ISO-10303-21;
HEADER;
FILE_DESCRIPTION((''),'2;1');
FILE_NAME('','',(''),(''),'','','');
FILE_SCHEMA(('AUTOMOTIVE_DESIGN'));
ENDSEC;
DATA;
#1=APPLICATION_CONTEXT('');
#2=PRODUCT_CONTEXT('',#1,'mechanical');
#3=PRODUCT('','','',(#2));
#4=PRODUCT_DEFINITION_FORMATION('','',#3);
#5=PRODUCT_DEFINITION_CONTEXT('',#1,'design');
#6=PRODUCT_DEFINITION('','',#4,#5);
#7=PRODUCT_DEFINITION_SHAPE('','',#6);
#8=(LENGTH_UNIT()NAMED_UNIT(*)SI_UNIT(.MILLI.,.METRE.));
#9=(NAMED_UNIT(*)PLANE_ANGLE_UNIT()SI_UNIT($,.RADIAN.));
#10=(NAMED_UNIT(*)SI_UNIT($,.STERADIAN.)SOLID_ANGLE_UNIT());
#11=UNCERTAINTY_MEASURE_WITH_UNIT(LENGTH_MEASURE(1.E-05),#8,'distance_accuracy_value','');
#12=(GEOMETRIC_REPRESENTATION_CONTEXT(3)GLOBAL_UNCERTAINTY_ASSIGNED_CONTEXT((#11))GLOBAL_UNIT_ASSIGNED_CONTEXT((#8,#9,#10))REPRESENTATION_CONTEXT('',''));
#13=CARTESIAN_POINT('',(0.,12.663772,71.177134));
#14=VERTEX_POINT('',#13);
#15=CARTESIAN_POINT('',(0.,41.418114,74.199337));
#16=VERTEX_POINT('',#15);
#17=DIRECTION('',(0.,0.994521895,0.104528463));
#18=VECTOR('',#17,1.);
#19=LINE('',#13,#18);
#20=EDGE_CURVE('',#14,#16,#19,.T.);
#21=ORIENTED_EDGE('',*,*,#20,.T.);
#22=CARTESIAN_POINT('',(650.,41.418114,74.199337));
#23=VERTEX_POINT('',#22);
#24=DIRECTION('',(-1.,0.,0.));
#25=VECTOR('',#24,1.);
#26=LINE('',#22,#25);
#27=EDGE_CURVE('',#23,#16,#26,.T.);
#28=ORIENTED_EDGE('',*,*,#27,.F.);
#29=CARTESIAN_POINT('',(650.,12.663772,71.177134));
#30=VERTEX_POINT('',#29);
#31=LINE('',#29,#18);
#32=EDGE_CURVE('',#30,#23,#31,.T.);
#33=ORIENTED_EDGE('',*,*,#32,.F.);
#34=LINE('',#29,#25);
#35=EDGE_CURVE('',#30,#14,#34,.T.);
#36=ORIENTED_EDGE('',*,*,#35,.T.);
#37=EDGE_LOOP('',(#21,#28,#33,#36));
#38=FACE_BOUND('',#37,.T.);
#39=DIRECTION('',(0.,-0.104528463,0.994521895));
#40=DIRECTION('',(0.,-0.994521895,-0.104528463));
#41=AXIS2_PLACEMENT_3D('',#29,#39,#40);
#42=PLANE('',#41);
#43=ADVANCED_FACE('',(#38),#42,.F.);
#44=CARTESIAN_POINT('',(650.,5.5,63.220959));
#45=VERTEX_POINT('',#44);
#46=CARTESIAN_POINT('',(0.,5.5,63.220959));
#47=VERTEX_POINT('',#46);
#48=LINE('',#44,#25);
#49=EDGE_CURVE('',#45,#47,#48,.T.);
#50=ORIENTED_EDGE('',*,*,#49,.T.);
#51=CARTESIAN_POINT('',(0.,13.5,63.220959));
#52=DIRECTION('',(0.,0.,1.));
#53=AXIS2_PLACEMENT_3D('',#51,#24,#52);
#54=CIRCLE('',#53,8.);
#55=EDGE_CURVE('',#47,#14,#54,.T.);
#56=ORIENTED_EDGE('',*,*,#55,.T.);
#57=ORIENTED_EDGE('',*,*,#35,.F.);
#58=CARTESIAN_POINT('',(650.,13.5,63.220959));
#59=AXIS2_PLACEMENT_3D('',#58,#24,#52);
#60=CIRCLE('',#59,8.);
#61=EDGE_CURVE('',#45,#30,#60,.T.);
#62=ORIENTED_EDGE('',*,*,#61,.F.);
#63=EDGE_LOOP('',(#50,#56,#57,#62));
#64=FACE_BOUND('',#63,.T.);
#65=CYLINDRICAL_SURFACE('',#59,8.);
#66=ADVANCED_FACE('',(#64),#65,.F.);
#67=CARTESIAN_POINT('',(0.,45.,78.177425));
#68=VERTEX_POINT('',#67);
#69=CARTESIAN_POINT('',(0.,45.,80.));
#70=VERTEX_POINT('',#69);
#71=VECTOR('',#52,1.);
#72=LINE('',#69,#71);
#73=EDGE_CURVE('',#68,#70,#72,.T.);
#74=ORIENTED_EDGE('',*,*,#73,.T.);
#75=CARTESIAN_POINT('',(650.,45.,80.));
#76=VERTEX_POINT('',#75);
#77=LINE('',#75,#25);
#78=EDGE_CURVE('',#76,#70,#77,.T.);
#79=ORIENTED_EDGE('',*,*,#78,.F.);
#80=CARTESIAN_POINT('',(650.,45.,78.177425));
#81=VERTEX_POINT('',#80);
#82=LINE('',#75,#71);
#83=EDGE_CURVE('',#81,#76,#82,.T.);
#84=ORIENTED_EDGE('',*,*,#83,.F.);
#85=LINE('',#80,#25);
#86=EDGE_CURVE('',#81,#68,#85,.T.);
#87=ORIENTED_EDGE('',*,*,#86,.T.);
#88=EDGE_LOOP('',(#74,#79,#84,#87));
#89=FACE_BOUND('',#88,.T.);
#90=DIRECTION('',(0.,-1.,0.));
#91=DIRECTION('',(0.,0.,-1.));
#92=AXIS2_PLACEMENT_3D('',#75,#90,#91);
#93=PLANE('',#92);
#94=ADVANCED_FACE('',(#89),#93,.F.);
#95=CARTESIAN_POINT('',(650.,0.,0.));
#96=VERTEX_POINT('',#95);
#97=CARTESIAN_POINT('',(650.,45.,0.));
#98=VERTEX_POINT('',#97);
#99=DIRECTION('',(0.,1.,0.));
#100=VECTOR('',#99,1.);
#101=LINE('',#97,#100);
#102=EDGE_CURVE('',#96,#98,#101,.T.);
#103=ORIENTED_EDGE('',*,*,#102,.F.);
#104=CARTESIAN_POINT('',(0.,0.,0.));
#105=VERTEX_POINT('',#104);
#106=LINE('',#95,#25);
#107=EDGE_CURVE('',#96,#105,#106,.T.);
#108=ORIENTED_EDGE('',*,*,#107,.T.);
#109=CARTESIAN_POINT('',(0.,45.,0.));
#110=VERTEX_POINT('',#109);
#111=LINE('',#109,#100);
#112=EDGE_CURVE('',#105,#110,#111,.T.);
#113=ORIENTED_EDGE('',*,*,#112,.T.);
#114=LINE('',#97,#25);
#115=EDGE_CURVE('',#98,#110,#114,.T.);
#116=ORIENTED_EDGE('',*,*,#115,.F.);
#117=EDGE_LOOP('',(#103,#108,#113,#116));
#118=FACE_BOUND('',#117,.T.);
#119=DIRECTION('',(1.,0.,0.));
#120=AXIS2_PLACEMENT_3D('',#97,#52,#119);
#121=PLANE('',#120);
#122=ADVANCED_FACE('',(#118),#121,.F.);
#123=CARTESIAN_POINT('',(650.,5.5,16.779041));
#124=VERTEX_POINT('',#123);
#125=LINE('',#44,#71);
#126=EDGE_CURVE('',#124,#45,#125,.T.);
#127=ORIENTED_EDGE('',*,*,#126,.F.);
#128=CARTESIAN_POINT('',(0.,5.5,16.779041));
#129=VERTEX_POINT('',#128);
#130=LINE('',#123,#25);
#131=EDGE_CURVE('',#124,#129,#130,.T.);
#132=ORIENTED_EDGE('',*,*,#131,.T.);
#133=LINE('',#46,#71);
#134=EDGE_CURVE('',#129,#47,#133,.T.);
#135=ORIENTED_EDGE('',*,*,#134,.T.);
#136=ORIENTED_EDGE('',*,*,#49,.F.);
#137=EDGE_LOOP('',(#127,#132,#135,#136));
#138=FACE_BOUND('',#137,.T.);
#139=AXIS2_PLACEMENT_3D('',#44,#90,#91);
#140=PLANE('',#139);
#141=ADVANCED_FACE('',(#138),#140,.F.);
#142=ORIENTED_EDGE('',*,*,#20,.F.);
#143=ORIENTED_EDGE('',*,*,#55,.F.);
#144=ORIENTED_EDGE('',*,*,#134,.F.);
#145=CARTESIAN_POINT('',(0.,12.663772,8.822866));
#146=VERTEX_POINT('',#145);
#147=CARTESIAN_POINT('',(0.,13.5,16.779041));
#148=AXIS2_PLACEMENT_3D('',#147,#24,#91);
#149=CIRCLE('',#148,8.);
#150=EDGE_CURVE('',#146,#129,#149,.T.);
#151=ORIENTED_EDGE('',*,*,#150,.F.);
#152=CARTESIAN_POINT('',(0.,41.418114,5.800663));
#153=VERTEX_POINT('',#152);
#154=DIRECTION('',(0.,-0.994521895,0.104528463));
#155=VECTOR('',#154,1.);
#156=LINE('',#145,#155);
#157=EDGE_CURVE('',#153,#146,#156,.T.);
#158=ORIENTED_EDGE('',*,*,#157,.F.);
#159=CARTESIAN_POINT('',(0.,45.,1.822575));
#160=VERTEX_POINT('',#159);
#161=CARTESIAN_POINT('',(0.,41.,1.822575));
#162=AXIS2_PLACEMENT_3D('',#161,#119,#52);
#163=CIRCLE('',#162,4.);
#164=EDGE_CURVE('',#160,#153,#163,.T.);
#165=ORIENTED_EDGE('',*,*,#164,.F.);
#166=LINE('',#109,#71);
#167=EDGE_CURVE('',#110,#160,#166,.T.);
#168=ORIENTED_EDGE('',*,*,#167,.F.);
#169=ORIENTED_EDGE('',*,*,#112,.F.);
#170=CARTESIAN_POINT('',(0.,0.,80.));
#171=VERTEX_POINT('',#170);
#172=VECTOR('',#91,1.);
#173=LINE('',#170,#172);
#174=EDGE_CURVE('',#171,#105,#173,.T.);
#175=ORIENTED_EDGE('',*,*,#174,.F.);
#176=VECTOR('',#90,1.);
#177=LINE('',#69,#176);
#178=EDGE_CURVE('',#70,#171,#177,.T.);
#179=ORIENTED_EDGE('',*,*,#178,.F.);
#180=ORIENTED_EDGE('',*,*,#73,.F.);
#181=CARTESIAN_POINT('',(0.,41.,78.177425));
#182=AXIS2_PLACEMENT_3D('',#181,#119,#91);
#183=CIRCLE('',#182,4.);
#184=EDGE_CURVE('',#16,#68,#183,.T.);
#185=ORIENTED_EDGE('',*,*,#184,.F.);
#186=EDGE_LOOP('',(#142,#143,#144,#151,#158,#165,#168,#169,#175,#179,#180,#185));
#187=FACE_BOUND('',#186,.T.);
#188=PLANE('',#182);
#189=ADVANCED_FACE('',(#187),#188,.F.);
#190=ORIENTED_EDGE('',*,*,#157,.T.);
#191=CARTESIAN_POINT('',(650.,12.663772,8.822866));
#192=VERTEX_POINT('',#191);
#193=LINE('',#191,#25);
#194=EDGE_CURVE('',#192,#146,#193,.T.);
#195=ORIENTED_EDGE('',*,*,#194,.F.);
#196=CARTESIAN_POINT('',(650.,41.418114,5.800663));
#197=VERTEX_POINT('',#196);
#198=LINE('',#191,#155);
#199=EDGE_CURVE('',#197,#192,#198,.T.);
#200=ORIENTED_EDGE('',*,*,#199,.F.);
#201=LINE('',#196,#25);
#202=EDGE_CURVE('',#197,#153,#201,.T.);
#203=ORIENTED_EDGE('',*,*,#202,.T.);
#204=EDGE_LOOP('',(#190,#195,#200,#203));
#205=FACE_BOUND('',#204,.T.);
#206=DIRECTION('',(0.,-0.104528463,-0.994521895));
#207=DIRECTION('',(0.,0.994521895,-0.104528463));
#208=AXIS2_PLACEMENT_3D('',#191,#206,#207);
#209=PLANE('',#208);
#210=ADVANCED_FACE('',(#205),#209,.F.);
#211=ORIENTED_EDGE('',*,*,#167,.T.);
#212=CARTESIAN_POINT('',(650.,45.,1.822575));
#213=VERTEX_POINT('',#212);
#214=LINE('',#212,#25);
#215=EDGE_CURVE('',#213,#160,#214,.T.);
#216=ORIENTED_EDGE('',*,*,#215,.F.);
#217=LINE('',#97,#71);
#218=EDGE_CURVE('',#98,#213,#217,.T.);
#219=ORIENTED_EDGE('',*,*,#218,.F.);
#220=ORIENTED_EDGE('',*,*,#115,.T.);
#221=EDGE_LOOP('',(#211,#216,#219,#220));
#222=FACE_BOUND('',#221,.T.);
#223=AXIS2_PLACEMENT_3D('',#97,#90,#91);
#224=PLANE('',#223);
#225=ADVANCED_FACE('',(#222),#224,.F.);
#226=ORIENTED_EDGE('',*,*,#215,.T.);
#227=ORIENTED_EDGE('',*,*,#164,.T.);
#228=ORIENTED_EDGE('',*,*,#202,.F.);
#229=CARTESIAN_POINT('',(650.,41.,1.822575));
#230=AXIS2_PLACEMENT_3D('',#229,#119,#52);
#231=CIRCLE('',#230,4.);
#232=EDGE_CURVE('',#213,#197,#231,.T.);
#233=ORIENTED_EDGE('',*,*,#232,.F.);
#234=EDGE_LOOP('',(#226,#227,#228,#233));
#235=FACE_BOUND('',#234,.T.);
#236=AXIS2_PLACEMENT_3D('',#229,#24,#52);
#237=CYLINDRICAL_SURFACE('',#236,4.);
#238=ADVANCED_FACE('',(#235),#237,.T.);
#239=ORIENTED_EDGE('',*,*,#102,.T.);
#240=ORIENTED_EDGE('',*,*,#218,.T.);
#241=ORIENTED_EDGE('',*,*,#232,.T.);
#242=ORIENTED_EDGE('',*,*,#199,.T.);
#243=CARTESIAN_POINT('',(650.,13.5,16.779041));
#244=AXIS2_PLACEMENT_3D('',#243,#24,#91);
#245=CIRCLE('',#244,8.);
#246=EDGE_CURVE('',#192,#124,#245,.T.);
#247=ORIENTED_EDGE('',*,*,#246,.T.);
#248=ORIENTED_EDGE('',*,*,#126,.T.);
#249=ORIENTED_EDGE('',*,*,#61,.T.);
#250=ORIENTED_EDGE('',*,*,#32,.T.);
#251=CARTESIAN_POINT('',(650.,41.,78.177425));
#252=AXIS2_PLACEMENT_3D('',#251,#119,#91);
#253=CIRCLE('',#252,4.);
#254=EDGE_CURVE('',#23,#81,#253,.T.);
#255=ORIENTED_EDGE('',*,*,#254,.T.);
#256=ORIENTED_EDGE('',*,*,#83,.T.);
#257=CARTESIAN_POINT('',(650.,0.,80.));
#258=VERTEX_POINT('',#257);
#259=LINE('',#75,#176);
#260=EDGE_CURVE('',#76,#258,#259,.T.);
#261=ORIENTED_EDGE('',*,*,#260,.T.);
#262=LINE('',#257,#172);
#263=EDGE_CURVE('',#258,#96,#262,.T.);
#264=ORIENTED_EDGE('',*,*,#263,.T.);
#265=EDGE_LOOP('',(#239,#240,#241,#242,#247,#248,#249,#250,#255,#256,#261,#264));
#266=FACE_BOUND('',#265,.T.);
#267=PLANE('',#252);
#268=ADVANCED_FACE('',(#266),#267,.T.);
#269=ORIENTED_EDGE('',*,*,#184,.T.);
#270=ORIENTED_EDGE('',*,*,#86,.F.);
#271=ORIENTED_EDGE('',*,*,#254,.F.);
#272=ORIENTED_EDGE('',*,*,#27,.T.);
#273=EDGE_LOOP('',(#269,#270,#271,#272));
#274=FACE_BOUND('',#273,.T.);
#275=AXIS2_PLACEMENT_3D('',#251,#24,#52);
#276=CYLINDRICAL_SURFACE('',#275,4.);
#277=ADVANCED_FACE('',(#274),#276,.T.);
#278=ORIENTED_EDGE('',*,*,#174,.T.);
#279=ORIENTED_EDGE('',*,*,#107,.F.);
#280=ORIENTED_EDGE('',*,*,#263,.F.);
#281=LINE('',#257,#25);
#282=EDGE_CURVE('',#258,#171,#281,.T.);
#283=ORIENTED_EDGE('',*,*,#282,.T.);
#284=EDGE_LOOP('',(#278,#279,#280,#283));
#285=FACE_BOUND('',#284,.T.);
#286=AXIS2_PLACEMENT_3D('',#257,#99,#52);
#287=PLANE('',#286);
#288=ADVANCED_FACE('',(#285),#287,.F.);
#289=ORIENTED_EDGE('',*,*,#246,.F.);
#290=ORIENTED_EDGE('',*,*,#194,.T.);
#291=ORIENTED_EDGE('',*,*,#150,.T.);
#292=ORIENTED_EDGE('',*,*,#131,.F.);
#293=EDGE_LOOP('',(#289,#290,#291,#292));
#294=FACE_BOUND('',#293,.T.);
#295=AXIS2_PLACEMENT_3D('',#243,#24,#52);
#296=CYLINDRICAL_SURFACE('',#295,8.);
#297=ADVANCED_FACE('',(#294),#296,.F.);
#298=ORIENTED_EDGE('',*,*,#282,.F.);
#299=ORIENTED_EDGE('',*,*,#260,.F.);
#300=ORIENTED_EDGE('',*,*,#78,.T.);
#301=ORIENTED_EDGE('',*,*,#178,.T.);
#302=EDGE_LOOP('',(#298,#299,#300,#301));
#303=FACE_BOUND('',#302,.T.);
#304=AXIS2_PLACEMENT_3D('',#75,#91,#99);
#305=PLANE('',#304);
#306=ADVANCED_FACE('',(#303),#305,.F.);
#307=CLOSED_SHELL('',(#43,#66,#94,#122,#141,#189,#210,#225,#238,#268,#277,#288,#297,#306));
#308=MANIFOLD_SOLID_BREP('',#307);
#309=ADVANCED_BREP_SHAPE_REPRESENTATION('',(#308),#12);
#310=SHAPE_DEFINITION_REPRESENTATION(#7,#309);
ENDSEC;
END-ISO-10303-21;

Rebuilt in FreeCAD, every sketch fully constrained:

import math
import FreeCAD as App
import Part
import Sketcher
Q = App.Units.Quantity

doc = App.newDocument("Part")
params = doc.addObject("Spreadsheet::Sheet", "Params")
for row, (alias, value) in enumerate([
    ("sketch1_radius", "4 mm"),
    ("sketch1_radius2", "8 mm"),
    ("sketch1_width", "45 mm"),
    ("sketch1_height", "80 mm"),
    ("pad1_length", "650 mm"),
], start=1):
    params.set(f"A{row}", alias)
    params.set(f"B{row}", "=" + value)
    params.setAlias(f"B{row}", alias)

body = doc.addObject("PartDesign::Body", "Body")

sketch1 = body.newObject("Sketcher::SketchObject", "Sketch")
sketch1.AttachmentSupport = (doc.getObject("YZ_Plane"), [""])
sketch1.MapMode = "FlatFace"
sketch1.addGeometry([
    Part.LineSegment(App.Vector(45, 80, 0), App.Vector(0, 80, 0)),
    Part.LineSegment(App.Vector(0, 80, 0), App.Vector(0, 0, 0)),
    Part.LineSegment(App.Vector(0, 0, 0), App.Vector(45, 0, 0)),
    Part.LineSegment(App.Vector(45, 0, 0), App.Vector(45, 1.8, 0)),
    Part.ArcOfCircle(Part.Circle(App.Vector(41, 1.8, 0), App.Vector(0, 0, 1), 4), math.radians(0), math.radians(84)),
    Part.LineSegment(App.Vector(41.4, 5.8, 0), App.Vector(12.7, 8.8, 0)),
    Part.ArcOfCircle(Part.Circle(App.Vector(13.5, 16.8, 0), App.Vector(0, 0, 1), 8), math.radians(180), math.radians(264)),
    Part.LineSegment(App.Vector(5.5, 16.8, 0), App.Vector(5.5, 63.2, 0)),
    Part.ArcOfCircle(Part.Circle(App.Vector(13.5, 63.2, 0), App.Vector(0, 0, 1), 8), math.radians(96), math.radians(180)),
    Part.LineSegment(App.Vector(12.7, 71.2, 0), App.Vector(41.4, 74.2, 0)),
    Part.ArcOfCircle(Part.Circle(App.Vector(41, 78.2, 0), App.Vector(0, 0, 1), 4), math.radians(-84), math.radians(0)),
    Part.LineSegment(App.Vector(45, 78.2, 0), App.Vector(45, 80, 0)),
], False)
sketch1.addConstraint([
    Sketcher.Constraint("Coincident", 0, 2, 1, 1),
    Sketcher.Constraint("Coincident", 1, 2, 2, 1),
    Sketcher.Constraint("Coincident", 2, 2, 3, 1),
    Sketcher.Constraint("Tangent", 3, 2, 4, 1),
    Sketcher.Constraint("Tangent", 4, 2, 5, 1),
    Sketcher.Constraint("Tangent", 5, 2, 6, 2),
    Sketcher.Constraint("Tangent", 6, 1, 7, 1),
    Sketcher.Constraint("Tangent", 7, 2, 8, 2),
    Sketcher.Constraint("Tangent", 8, 1, 9, 1),
    Sketcher.Constraint("Tangent", 9, 2, 10, 1),
    Sketcher.Constraint("Tangent", 10, 2, 11, 1),
    Sketcher.Constraint("Coincident", 11, 2, 0, 1),
    Sketcher.Constraint("Horizontal", 0),
    Sketcher.Constraint("Vertical", 1),
    Sketcher.Constraint("Horizontal", 2),
    Sketcher.Constraint("Vertical", 3),
    Sketcher.Constraint("Vertical", 7),
    Sketcher.Constraint("Vertical", 11),
    Sketcher.Constraint("Coincident", 1, 2, -1, 1),
    Sketcher.Constraint("Equal", 6, 8),
    Sketcher.Constraint("Equal", 4, 10),
    Sketcher.Constraint("Vertical", 4, 3, 10, 3),
    Sketcher.Constraint("Vertical", 5, 2, 8, 1),
    Sketcher.Constraint("Equal", 3, 11),
    Sketcher.Constraint("Radius", 4, Q("4 mm")),
    Sketcher.Constraint("Radius", 6, Q("8 mm")),
    Sketcher.Constraint("DistanceX", 0, 2, 0, 1, Q("45 mm")),
    Sketcher.Constraint("DistanceY", 1, 2, 1, 1, Q("80 mm")),
    Sketcher.Constraint("Angle", 5, Q("174 deg")),
    Sketcher.Constraint("DistanceX", -1, 1, 6, 3, Q("13.5 mm")),
    Sketcher.Constraint("DistanceY", 3, 1, 3, 2, Q("1.822575 mm")),
])
sketch1.setExpression("Constraints[24]", "Params.sketch1_radius")
sketch1.setExpression("Constraints[25]", "Params.sketch1_radius2")
sketch1.setExpression("Constraints[26]", "Params.sketch1_width")
sketch1.setExpression("Constraints[27]", "Params.sketch1_height")
pad1 = body.newObject("PartDesign::Pad", "Pad")
pad1.Profile = sketch1
pad1.setExpression("Length", "Params.pad1_length")

doc.recompute()
